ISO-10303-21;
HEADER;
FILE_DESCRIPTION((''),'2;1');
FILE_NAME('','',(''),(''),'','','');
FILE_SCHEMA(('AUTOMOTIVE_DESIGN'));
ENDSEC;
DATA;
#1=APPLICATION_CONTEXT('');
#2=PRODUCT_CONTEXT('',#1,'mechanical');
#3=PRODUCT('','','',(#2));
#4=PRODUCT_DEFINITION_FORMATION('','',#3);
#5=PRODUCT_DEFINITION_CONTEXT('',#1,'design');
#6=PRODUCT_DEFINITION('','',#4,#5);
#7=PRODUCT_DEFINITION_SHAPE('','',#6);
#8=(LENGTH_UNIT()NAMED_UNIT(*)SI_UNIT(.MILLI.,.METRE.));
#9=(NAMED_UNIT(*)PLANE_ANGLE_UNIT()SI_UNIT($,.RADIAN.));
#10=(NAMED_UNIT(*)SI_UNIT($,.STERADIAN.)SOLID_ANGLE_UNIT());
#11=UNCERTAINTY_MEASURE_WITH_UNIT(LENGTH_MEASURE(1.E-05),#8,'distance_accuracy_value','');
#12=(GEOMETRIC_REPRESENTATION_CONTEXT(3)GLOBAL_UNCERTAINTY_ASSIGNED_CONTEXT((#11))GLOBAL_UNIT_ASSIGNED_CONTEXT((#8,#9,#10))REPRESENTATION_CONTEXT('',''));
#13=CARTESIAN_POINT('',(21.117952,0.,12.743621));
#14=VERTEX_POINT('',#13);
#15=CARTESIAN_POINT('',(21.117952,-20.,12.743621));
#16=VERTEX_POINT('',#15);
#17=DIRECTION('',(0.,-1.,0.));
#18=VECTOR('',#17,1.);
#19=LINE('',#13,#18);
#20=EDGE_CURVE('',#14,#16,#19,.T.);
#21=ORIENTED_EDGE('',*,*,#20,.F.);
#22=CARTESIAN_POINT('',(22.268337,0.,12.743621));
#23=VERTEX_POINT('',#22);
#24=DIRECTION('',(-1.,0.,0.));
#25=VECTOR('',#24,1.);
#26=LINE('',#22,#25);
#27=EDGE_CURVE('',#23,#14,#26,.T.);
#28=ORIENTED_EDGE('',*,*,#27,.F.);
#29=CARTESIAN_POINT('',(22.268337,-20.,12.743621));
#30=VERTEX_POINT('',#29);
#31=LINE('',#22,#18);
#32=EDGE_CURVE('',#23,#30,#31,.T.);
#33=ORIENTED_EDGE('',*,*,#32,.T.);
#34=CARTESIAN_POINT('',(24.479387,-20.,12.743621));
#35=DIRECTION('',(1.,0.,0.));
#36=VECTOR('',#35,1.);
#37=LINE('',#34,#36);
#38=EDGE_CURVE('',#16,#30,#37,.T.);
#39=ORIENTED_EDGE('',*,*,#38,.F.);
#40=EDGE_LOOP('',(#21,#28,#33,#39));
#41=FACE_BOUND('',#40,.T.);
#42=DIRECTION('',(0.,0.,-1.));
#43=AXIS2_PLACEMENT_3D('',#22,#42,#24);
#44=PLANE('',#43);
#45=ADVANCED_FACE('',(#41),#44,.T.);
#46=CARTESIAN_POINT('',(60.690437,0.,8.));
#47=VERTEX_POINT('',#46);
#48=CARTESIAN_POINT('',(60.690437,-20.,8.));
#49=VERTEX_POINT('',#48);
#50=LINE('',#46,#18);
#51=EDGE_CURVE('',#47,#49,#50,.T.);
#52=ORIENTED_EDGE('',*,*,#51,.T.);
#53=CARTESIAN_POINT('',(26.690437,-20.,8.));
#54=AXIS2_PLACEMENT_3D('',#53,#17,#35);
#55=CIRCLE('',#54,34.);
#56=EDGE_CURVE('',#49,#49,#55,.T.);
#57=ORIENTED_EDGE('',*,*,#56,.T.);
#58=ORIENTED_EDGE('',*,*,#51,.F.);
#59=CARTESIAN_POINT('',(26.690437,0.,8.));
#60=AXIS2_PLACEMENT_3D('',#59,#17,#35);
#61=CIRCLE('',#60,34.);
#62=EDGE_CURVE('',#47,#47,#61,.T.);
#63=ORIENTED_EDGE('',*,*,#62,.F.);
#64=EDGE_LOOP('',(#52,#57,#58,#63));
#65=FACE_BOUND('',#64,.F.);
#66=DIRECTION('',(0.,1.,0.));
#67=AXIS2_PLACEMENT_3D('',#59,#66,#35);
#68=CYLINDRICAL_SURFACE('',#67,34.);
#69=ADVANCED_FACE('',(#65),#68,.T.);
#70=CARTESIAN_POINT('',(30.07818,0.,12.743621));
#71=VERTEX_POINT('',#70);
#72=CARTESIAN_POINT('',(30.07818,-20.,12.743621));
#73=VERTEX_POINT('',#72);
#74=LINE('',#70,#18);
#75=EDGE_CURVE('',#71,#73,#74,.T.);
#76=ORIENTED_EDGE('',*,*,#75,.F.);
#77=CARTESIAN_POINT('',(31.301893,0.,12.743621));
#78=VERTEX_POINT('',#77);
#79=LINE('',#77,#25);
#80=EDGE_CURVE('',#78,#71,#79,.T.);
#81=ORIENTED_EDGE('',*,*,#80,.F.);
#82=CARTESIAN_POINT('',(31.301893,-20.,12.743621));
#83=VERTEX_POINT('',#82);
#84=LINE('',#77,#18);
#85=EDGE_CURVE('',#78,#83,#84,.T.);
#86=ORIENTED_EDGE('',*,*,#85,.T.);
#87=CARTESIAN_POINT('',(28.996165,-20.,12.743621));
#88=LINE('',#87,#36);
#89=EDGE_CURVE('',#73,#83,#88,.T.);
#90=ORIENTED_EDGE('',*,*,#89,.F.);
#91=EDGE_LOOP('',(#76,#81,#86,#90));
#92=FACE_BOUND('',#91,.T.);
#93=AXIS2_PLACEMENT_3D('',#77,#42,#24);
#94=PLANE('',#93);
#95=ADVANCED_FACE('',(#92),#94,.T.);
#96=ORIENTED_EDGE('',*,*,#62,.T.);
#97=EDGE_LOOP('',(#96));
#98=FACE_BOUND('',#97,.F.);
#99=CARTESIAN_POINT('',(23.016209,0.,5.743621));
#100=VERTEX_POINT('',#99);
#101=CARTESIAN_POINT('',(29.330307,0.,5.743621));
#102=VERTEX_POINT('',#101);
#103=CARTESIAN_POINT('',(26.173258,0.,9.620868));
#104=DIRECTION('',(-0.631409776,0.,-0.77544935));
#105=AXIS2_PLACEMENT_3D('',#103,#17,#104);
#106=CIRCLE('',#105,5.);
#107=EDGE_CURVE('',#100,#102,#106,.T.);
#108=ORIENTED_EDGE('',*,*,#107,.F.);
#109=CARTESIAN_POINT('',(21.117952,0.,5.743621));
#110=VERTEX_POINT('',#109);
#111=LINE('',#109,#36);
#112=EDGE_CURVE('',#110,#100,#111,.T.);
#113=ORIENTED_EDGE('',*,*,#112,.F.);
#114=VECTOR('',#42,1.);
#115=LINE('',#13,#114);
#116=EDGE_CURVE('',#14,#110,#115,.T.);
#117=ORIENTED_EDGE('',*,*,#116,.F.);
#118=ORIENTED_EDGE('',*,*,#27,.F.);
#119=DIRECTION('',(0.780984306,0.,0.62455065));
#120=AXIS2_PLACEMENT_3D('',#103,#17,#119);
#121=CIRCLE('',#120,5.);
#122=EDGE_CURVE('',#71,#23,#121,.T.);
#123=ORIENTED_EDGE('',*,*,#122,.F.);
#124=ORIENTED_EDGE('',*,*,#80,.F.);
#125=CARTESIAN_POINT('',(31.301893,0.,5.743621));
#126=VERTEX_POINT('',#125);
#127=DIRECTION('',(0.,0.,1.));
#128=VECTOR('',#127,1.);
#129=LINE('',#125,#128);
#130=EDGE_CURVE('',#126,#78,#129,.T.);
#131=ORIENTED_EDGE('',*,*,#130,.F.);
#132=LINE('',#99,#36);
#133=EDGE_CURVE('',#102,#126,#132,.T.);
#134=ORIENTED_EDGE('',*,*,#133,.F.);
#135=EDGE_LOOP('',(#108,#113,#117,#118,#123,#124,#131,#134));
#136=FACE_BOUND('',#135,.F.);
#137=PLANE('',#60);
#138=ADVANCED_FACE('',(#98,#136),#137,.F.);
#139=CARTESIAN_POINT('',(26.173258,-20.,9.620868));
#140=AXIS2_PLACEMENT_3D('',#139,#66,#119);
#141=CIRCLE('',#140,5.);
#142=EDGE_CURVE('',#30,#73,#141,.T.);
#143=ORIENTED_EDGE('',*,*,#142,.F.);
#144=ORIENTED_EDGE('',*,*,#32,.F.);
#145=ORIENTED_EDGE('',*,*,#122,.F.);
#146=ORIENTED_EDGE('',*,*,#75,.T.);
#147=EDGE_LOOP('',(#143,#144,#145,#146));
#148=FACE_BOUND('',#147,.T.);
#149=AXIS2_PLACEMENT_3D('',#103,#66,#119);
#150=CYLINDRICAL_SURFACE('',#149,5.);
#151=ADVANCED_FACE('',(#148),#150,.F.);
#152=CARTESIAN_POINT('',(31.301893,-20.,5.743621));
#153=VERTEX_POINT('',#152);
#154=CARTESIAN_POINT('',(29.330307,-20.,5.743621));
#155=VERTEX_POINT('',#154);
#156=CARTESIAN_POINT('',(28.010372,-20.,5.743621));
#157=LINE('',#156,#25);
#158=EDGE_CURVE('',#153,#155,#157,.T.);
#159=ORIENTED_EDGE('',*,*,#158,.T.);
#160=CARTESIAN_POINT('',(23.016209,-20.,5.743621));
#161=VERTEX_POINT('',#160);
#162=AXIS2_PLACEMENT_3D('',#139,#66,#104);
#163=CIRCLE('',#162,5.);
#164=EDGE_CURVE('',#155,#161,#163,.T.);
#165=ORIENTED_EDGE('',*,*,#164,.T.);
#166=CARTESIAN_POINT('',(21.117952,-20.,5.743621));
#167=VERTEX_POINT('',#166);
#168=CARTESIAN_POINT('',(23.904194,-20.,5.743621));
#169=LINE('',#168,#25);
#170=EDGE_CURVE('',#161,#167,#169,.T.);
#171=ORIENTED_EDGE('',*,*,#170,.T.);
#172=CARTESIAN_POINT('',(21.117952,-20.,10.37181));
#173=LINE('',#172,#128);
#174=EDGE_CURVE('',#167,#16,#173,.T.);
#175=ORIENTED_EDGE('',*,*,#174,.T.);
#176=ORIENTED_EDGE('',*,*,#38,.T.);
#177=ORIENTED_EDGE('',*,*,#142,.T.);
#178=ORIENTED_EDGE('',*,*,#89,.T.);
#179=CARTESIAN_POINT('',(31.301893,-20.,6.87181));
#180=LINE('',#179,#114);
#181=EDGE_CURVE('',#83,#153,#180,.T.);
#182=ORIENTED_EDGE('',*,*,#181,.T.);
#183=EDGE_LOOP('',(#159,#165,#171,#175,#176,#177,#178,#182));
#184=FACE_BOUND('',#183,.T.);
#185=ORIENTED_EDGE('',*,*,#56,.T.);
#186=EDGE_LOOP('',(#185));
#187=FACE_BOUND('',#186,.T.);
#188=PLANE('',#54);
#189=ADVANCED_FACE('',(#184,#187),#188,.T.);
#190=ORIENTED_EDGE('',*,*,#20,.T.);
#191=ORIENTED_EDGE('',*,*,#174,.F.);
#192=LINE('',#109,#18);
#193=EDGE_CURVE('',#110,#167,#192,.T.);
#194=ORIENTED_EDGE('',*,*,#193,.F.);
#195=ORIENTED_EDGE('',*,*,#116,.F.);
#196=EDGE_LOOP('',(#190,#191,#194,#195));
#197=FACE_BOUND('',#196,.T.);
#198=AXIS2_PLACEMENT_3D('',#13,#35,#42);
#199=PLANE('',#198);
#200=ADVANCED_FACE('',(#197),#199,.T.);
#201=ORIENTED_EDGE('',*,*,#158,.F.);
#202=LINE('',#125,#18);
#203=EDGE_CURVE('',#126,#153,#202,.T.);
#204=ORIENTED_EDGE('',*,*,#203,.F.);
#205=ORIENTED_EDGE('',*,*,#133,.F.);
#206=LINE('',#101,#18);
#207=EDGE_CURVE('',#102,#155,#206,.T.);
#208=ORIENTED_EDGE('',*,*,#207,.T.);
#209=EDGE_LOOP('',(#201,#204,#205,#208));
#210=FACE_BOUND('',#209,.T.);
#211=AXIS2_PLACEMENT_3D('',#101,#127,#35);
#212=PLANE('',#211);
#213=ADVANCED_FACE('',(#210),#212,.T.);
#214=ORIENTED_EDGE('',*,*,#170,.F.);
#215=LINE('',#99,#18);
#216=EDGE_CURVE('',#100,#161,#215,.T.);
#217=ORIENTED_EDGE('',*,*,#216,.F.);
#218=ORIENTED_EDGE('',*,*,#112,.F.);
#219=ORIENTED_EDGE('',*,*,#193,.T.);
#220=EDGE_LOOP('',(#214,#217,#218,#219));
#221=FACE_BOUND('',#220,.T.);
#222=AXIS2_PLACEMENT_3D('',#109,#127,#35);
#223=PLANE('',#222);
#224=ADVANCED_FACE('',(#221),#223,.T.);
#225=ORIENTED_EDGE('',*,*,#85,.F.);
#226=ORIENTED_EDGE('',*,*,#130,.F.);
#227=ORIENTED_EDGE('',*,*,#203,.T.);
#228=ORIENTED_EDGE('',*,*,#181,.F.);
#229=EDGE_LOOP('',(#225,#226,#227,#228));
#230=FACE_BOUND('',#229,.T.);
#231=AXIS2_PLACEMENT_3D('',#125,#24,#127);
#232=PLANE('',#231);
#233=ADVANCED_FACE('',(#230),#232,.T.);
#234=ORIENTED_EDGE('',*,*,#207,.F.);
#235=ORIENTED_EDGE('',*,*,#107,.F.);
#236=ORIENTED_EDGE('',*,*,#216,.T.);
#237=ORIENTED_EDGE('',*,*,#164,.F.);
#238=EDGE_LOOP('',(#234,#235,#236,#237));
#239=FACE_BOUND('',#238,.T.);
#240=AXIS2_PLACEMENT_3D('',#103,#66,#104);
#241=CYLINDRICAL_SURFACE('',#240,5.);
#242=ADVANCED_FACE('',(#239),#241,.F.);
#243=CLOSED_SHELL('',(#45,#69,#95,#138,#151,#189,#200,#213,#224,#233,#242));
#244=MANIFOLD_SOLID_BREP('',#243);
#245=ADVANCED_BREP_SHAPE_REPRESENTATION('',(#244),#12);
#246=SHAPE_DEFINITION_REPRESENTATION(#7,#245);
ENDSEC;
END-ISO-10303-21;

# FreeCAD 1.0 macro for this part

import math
import FreeCAD as App
import Part
import Sketcher

V = App.Vector
Q = App.Units.Quantity

doc = App.newDocument("Part")
body = doc.addObject("PartDesign::Body", "Body")

# Sketch on XZ plane
sketch1 = body.newObject("Sketcher::SketchObject", "Sketch")
sketch1.AttachmentSupport = (doc.getObject("XZ_Plane"), [""])
sketch1.MapMode = "FlatFace"
sketch1.addGeometry(Part.Circle(V(26.690437, 8, 0), V(0, 0, 1), 34), False)
sketch1.addConstraint([
    Sketcher.Constraint("Diameter", 0, Q("68 mm")),
    Sketcher.Constraint("DistanceY", -1, 1, 0, 3, Q("8 mm")),
    Sketcher.Constraint("DistanceX", -1, 1, 0, 3, Q("26.690437 mm")),
])
pad1 = body.newObject("PartDesign::Pad", "Pad")
pad1.Profile = sketch1
pad1.Length = 20

# Sketch on XZ plane
sketch2 = body.newObject("Sketcher::SketchObject", "Sketch001")
sketch2.AttachmentSupport = (doc.getObject("XZ_Plane"), [""])
sketch2.MapMode = "FlatFace"
sketch2.addGeometry([
    Part.ArcOfCircle(Part.Circle(V(26.173258, 9.620868, 0), V(0, 0, 1), 5), math.radians(-129.15421), math.radians(-50.84579)),  # 0
    Part.LineSegment(V(29.330307, 5.743621, 0), V(31.301893, 5.743621, 0)),  # 1
    Part.LineSegment(V(31.301893, 5.743621, 0), V(31.301893, 12.743621, 0)),  # 2
    Part.LineSegment(V(31.301893, 12.743621, 0), V(30.07818, 12.743621, 0)),  # 3
    Part.ArcOfCircle(Part.Circle(V(26.173258, 9.620868, 0), V(0, 0, 1), 5), math.radians(38.649214), math.radians(141.350786)),  # 4
    Part.LineSegment(V(22.268337, 12.743621, 0), V(21.117952, 12.743621, 0)),  # 5
    Part.LineSegment(V(21.117952, 12.743621, 0), V(21.117952, 5.743621, 0)),  # 6
    Part.LineSegment(V(21.117952, 5.743621, 0), V(23.016209, 5.743621, 0)),  # 7
], False)
sketch2.addConstraint([
    Sketcher.Constraint("Coincident", 0, 2, 1, 1),
    Sketcher.Constraint("Coincident", 1, 2, 2, 1),
    Sketcher.Constraint("Coincident", 2, 2, 3, 1),
    Sketcher.Constraint("Coincident", 3, 2, 4, 1),
    Sketcher.Constraint("Coincident", 4, 2, 5, 1),
    Sketcher.Constraint("Coincident", 5, 2, 6, 1),
    Sketcher.Constraint("Coincident", 6, 2, 7, 1),
    Sketcher.Constraint("Coincident", 7, 2, 0, 1),
    Sketcher.Constraint("Horizontal", 1),
    Sketcher.Constraint("Vertical", 2),
    Sketcher.Constraint("Horizontal", 3),
    Sketcher.Constraint("Horizontal", 5),
    Sketcher.Constraint("Vertical", 6),
    Sketcher.Constraint("Horizontal", 7),
    Sketcher.Constraint("Coincident", 4, 3, 0, 3),
    Sketcher.Constraint("Equal", 0, 4),
    Sketcher.Constraint("Horizontal", 3, 2, 4, 2),
    Sketcher.Constraint("Horizontal", 1, 2, 6, 2),
    Sketcher.Constraint("Radius", 0, Q("5 mm")),
    Sketcher.Constraint("DistanceY", 2, 1, 2, 2, Q("7 mm")),
    Sketcher.Constraint("DistanceX", 1, 1, 1, 2, Q("1.971586 mm")),
    Sketcher.Constraint("DistanceX", 3, 2, 3, 1, Q("1.223714 mm")),
    Sketcher.Constraint("DistanceX", 5, 2, 5, 1, Q("1.150385 mm")),
    Sketcher.Constraint("DistanceX", -1, 1, 0, 3, Q("26.173258 mm")),
    Sketcher.Constraint("DistanceY", -1, 1, 0, 2, Q("5.743621 mm")),
])
pocket1 = body.newObject("PartDesign::Pocket", "Pocket")
pocket1.Profile = sketch2
pocket1.Length = 69.9
pocket1.Reversed = True

doc.recompute()
